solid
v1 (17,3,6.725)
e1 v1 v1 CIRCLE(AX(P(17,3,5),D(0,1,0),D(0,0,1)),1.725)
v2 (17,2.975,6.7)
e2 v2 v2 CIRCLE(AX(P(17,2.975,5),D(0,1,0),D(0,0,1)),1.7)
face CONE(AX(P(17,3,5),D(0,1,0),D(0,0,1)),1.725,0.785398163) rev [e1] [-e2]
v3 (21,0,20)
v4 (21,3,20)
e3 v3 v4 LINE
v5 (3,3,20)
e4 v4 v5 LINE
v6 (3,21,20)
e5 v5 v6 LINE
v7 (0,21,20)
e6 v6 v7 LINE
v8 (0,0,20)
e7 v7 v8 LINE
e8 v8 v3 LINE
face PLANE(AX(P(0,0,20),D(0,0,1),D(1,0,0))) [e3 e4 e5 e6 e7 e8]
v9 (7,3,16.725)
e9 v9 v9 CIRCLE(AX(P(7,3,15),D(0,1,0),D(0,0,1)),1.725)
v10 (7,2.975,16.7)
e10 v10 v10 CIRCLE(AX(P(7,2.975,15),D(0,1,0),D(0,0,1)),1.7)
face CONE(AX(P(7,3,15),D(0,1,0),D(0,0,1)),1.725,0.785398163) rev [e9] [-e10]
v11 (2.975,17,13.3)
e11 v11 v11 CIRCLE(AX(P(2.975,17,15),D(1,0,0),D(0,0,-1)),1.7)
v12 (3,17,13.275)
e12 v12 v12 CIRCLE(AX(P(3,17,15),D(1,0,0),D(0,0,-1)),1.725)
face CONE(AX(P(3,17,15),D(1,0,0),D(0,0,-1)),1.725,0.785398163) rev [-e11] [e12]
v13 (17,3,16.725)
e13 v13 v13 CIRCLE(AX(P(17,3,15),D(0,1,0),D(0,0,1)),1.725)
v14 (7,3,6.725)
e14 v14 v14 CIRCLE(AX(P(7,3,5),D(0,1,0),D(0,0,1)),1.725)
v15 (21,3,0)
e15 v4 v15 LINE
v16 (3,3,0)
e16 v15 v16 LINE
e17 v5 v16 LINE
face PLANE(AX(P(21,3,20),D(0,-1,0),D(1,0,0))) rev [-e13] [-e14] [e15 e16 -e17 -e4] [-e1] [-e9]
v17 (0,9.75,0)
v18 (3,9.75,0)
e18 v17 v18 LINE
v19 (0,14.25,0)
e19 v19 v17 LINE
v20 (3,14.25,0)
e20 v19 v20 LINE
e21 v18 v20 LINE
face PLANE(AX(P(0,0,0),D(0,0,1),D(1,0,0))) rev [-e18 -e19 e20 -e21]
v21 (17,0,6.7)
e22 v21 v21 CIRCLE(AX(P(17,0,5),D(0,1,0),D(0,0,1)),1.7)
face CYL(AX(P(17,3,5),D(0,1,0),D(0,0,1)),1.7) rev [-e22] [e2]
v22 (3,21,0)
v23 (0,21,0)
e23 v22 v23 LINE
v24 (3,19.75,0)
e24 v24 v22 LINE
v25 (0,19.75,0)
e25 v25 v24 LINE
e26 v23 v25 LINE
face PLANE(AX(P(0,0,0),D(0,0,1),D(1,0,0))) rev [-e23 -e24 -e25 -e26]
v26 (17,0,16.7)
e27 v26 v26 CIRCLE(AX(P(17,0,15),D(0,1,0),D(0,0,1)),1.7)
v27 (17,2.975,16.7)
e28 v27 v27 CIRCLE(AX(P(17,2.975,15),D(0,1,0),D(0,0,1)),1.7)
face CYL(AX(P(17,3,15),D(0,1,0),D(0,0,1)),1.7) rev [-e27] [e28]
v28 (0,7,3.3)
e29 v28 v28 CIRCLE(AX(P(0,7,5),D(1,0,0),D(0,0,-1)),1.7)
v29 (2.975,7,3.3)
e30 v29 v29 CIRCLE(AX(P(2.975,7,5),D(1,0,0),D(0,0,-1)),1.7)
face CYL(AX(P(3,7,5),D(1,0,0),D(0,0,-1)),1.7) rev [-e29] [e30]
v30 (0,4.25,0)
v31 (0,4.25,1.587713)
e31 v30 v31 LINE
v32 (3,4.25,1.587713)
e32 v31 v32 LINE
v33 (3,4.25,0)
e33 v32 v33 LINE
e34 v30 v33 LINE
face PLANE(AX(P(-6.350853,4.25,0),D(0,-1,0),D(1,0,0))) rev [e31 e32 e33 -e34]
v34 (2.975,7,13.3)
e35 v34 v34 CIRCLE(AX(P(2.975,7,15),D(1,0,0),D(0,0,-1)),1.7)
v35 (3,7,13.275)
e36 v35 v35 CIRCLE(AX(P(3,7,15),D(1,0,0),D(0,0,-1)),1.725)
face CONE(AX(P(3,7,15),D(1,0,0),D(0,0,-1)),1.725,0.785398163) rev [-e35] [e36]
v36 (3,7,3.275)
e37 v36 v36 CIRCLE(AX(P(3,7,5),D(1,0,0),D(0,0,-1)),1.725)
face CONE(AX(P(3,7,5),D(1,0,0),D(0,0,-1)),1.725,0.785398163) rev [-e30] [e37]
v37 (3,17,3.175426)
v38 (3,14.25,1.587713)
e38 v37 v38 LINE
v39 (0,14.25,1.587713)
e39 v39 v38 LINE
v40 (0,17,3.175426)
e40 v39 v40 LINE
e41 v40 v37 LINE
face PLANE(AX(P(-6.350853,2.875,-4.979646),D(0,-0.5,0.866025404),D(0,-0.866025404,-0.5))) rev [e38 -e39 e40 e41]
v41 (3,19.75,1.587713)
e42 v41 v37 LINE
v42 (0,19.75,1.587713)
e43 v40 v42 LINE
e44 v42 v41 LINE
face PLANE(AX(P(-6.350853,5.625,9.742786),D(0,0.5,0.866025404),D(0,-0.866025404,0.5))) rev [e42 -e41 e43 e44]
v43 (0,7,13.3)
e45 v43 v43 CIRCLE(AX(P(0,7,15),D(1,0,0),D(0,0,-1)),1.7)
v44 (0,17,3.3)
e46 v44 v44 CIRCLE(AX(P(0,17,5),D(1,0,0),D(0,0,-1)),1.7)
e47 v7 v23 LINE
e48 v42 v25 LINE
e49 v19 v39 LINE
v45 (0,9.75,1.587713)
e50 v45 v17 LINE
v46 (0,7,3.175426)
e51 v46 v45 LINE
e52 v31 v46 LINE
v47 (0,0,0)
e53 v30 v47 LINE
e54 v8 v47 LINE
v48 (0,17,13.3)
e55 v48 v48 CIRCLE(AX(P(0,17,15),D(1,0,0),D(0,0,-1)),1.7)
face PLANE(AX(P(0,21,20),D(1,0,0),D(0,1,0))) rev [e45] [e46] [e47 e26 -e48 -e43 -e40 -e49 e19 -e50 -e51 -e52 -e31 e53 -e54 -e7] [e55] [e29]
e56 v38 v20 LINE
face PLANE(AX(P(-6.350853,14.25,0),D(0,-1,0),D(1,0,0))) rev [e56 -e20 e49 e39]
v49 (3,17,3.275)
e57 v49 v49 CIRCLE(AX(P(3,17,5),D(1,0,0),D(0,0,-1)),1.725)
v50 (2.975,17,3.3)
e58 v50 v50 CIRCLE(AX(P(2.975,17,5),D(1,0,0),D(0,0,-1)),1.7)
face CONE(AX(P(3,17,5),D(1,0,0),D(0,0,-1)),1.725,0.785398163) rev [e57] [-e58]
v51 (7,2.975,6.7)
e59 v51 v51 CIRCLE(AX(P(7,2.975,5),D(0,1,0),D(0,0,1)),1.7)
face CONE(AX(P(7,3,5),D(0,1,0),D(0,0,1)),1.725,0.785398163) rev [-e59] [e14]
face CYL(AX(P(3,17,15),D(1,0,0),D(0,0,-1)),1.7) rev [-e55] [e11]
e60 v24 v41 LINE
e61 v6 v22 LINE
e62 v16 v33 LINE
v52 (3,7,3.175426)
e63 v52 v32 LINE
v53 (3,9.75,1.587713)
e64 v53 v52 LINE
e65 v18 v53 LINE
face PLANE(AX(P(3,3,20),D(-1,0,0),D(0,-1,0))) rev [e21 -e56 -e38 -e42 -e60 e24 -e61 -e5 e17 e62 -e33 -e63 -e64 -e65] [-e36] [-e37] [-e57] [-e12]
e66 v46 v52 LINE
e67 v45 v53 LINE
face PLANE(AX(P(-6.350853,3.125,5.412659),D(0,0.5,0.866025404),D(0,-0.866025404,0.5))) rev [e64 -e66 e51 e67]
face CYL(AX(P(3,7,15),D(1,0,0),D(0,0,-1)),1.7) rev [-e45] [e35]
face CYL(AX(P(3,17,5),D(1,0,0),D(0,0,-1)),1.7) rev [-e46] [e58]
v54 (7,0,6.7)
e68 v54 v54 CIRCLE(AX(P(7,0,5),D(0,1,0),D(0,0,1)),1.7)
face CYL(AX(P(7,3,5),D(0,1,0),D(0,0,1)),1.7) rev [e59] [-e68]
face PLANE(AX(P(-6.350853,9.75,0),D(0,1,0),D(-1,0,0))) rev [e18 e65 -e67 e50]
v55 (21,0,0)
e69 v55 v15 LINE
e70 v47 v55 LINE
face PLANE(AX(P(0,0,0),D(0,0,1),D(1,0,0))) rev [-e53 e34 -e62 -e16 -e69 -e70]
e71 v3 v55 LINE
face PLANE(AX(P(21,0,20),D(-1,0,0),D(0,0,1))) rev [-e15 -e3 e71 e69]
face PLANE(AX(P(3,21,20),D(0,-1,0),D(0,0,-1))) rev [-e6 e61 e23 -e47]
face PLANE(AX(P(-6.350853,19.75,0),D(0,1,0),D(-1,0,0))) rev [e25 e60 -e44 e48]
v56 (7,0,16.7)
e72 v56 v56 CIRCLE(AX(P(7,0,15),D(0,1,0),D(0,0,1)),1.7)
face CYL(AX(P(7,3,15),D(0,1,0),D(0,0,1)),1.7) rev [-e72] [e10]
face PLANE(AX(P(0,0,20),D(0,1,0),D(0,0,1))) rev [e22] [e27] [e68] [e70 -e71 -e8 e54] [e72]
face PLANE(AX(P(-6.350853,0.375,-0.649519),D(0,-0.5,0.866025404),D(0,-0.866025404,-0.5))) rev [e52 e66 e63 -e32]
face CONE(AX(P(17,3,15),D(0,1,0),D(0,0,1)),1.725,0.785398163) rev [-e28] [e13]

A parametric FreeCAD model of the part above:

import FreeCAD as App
import Part
import Sketcher

V = App.Vector
Q = App.Units.Quantity

doc = App.newDocument("Part")
params = doc.addObject("Spreadsheet::Sheet", "Params")
for row, (alias, value) in enumerate([
    ("sketch1_width", "21 mm"),
    ("sketch1_width2", "18 mm"),
    ("pad1_length", "20 mm"),
    ("sketch2_diameter", "3.4 mm"),
    ("hole_diameter", "3.4 mm"),
    ("hole_csink_diameter", "3.45 mm"),
    ("sketch3_diameter", "3.4 mm"),
    ("hole2_diameter", "3.4 mm"),
    ("hole2_csink_diameter", "3.45 mm"),
    ("sketch4_width", "5.5 mm"),
    ("pocket1_length", "3 mm"),
], start=1):
    params.set(f"A{row}", alias)
    params.set(f"B{row}", "=" + value)
    params.setAlias(f"B{row}", alias)

body = doc.addObject("PartDesign::Body", "Body")

# Sketch on XY plane
sketch1 = body.newObject("Sketcher::SketchObject", "Sketch")
sketch1.AttachmentSupport = (doc.getObject("XY_Plane"), [""])
sketch1.MapMode = "FlatFace"
sketch1.addGeometry([
    Part.LineSegment(V(0, 21, 0), V(0, 0, 0)),  # 0
    Part.LineSegment(V(0, 0, 0), V(21, 0, 0)),  # 1
    Part.LineSegment(V(21, 0, 0), V(21, 3, 0)),  # 2
    Part.LineSegment(V(21, 3, 0), V(3, 3, 0)),  # 3
    Part.LineSegment(V(3, 3, 0), V(3, 21, 0)),  # 4
    Part.LineSegment(V(3, 21, 0), V(0, 21, 0)),  # 5
], False)
sketch1.addConstraint([
    Sketcher.Constraint("Coincident", 0, 2, 1, 1),
    Sketcher.Constraint("Coincident", 1, 2, 2, 1),
    Sketcher.Constraint("Coincident", 2, 2, 3, 1),
    Sketcher.Constraint("Coincident", 3, 2, 4, 1),
    Sketcher.Constraint("Coincident", 4, 2, 5, 1),
    Sketcher.Constraint("Coincident", 5, 2, 0, 1),
    Sketcher.Constraint("Vertical", 0),
    Sketcher.Constraint("Horizontal", 1),
    Sketcher.Constraint("Vertical", 2),
    Sketcher.Constraint("Horizontal", 3),
    Sketcher.Constraint("Vertical", 4),
    Sketcher.Constraint("Horizontal", 5),
    Sketcher.Constraint("Coincident", 0, 2, -1, 1),
    Sketcher.Constraint("Equal", 1, 0),
    Sketcher.Constraint("Equal", 5, 2),
    Sketcher.Constraint("DistanceX", 1, 1, 1, 2, Q("21 mm")),
    Sketcher.Constraint("DistanceX", 3, 2, 3, 1, Q("18 mm")),
])
sketch1.setExpression("Constraints[15]", "Params.sketch1_width")
sketch1.setExpression("Constraints[16]", "Params.sketch1_width2")
pad1 = body.newObject("PartDesign::Pad", "Pad")
pad1.Profile = sketch1
pad1.setExpression("Length", "Params.pad1_length")

# Sketch on XZ plane
sketch2 = body.newObject("Sketcher::SketchObject", "Sketch001")
sketch2.AttachmentSupport = (doc.getObject("XZ_Plane"), [""])
sketch2.MapMode = "FlatFace"
sketch2.AttachmentOffset = App.Placement(V(0, 0, -3), App.Rotation())
sketch2.addGeometry([
    Part.Circle(V(7, 15, 0), V(0, 0, 1), 1.7),
    Part.Circle(V(7, 5, 0), V(0, 0, 1), 1.7),
    Part.Circle(V(17, 5, 0), V(0, 0, 1), 1.7),
    Part.Circle(V(17, 15, 0), V(0, 0, 1), 1.7),
], False)
sketch2.addConstraint([
    Sketcher.Constraint("Equal", 0, 1),
    Sketcher.Constraint("Equal", 1, 2),
    Sketcher.Constraint("Equal", 2, 3),
    Sketcher.Constraint("Horizontal", 1, 3, 2, 3),
    Sketcher.Constraint("Horizontal", 0, 3, 3, 3),
    Sketcher.Constraint("Vertical", 0, 3, 1, 3),
    Sketcher.Constraint("Vertical", 2, 3, 3, 3),
    Sketcher.Constraint("Diameter", 0, Q("3.4 mm")),
    Sketcher.Constraint("DistanceX", -1, 1, 0, 3, Q("7 mm")),
    Sketcher.Constraint("DistanceY", -1, 1, 0, 3, Q("15 mm")),
    Sketcher.Constraint("DistanceY", -1, 1, 1, 3, Q("5 mm")),
    Sketcher.Constraint("DistanceX", -1, 1, 2, 3, Q("17 mm")),
])
sketch2.setExpression("Constraints[7]", "Params.sketch2_diameter")
doc.recompute()
hole = body.newObject("PartDesign::Hole", "Hole")
hole.Profile = sketch2
hole.ThreadType = "None"
hole.setExpression("Diameter", "Params.hole_diameter")
hole.DepthType = "ThroughAll"
hole.HoleCutType = "Countersink"
hole.setExpression("HoleCutDiameter", "Params.hole_csink_diameter")
hole.HoleCutCountersinkAngle = 90
hole.Reversed = True

# Sketch on YZ plane
sketch3 = body.newObject("Sketcher::SketchObject", "Sketch002")
sketch3.AttachmentSupport = (doc.getObject("YZ_Plane"), [""])
sketch3.MapMode = "FlatFace"
sketch3.AttachmentOffset = App.Placement(V(0, 0, 3), App.Rotation())
sketch3.addGeometry([
    Part.Circle(V(7, 15, 0), V(0, 0, 1), 1.7),
    Part.Circle(V(7, 5, 0), V(0, 0, 1), 1.7),
    Part.Circle(V(17, 5, 0), V(0, 0, 1), 1.7),
    Part.Circle(V(17, 15, 0), V(0, 0, 1), 1.7),
], False)
sketch3.addConstraint([
    Sketcher.Constraint("Equal", 0, 1),
    Sketcher.Constraint("Equal", 1, 2),
    Sketcher.Constraint("Equal", 2, 3),
    Sketcher.Constraint("Horizontal", 1, 3, 2, 3),
    Sketcher.Constraint("Horizontal", 0, 3, 3, 3),
    Sketcher.Constraint("Vertical", 0, 3, 1, 3),
    Sketcher.Constraint("Vertical", 2, 3, 3, 3),
    Sketcher.Constraint("Diameter", 0, Q("3.4 mm")),
    Sketcher.Constraint("DistanceX", -1, 1, 0, 3, Q("7 mm")),
    Sketcher.Constraint("DistanceY", -1, 1, 0, 3, Q("15 mm")),
    Sketcher.Constraint("DistanceY", -1, 1, 1, 3, Q("5 mm")),
    Sketcher.Constraint("DistanceX", -1, 1, 2, 3, Q("17 mm")),
])
sketch3.setExpression("Constraints[7]", "Params.sketch3_diameter")
doc.recompute()
hole2 = body.newObject("PartDesign::Hole", "Hole001")
hole2.Profile = sketch3
hole2.ThreadType = "None"
hole2.setExpression("Diameter", "Params.hole2_diameter")
hole2.DepthType = "ThroughAll"
hole2.HoleCutType = "Countersink"
hole2.setExpression("HoleCutDiameter", "Params.hole2_csink_diameter")
hole2.HoleCutCountersinkAngle = 90

# Sketch on YZ plane
sketch4 = body.newObject("Sketcher::SketchObject", "Sketch003")
sketch4.AttachmentSupport = (doc.getObject("YZ_Plane"), [""])
sketch4.MapMode = "FlatFace"
sketch4.AttachmentOffset = App.Placement(V(0, 0, 3), App.Rotation())
sketch4.addGeometry([
    Part.LineSegment(V(9.8, 0, 0), V(9.8, 1.6, 0)),  # 0
    Part.LineSegment(V(9.8, 1.6, 0), V(7, 3.2, 0)),  # 1
    Part.LineSegment(V(7, 3.2, 0), V(4.2, 1.6, 0)),  # 2
    Part.LineSegment(V(4.2, 1.6, 0), V(4.2, 0, 0)),  # 3
    Part.LineSegment(V(4.2, 0, 0), V(9.8, 0, 0)),  # 4
    Part.LineSegment(V(14.2, 1.6, 0), V(14.2, 0, 0)),  # 5
    Part.LineSegment(V(14.2, 0, 0), V(19.8, 0, 0)),  # 6
    Part.LineSegment(V(19.8, 0, 0), V(19.8, 1.6, 0)),  # 7
    Part.LineSegment(V(19.8, 1.6, 0), V(17, 3.2, 0)),  # 8
    Part.LineSegment(V(17, 3.2, 0), V(14.2, 1.6, 0)),  # 9
], False)
sketch4.addConstraint([
    Sketcher.Constraint("Coincident", 0, 2, 1, 1),
    Sketcher.Constraint("Coincident", 1, 2, 2, 1),
    Sketcher.Constraint("Coincident", 2, 2, 3, 1),
    Sketcher.Constraint("Coincident", 3, 2, 4, 1),
    Sketcher.Constraint("Coincident", 4, 2, 0, 1),
    Sketcher.Constraint("Coincident", 5, 2, 6, 1),
    Sketcher.Constraint("Coincident", 6, 2, 7, 1),
    Sketcher.Constraint("Coincident", 7, 2, 8, 1),
    Sketcher.Constraint("Coincident", 8, 2, 9, 1),
    Sketcher.Constraint("Coincident", 9, 2, 5, 1),
    Sketcher.Constraint("Vertical", 0),
    Sketcher.Constraint("Vertical", 3),
    Sketcher.Constraint("Horizontal", 4),
    Sketcher.Constraint("Vertical", 5),
    Sketcher.Constraint("Horizontal", 6),
    Sketcher.Constraint("Vertical", 7),
    Sketcher.Constraint("PointOnObject", 3, 2, -1),
    Sketcher.Constraint("PointOnObject", 5, 2, -1),
    Sketcher.Constraint("Parallel", 1, 8),
    Sketcher.Constraint("Parallel", 2, 9),
    Sketcher.Constraint("Horizontal", 0, 2, 2, 2),
    Sketcher.Constraint("Horizontal", 2, 2, 7, 2),
    Sketcher.Constraint("Horizontal", 1, 2, 8, 2),
    Sketcher.Constraint("Horizontal", 7, 2, 9, 2),
    Sketcher.Constraint("Equal", 1, 2),
    Sketcher.Constraint("Angle", 1, Q("150 deg")),
    Sketcher.Constraint("DistanceX", 4, 1, 4, 2, Q("5.5 mm")),
    Sketcher.Constraint("DistanceX", -1, 1, 1, 2, Q("7 mm")),
    Sketcher.Constraint("DistanceX", -1, 1, 8, 2, Q("17 mm")),
    Sketcher.Constraint("DistanceY", 0, 1, 0, 2, Q("1.587713 mm")),
])
sketch4.setExpression("Constraints[26]", "Params.sketch4_width")
pocket1 = body.newObject("PartDesign::Pocket", "Pocket")
pocket1.Profile = sketch4
pocket1.setExpression("Length", "Params.pocket1_length")

doc.recompute()
